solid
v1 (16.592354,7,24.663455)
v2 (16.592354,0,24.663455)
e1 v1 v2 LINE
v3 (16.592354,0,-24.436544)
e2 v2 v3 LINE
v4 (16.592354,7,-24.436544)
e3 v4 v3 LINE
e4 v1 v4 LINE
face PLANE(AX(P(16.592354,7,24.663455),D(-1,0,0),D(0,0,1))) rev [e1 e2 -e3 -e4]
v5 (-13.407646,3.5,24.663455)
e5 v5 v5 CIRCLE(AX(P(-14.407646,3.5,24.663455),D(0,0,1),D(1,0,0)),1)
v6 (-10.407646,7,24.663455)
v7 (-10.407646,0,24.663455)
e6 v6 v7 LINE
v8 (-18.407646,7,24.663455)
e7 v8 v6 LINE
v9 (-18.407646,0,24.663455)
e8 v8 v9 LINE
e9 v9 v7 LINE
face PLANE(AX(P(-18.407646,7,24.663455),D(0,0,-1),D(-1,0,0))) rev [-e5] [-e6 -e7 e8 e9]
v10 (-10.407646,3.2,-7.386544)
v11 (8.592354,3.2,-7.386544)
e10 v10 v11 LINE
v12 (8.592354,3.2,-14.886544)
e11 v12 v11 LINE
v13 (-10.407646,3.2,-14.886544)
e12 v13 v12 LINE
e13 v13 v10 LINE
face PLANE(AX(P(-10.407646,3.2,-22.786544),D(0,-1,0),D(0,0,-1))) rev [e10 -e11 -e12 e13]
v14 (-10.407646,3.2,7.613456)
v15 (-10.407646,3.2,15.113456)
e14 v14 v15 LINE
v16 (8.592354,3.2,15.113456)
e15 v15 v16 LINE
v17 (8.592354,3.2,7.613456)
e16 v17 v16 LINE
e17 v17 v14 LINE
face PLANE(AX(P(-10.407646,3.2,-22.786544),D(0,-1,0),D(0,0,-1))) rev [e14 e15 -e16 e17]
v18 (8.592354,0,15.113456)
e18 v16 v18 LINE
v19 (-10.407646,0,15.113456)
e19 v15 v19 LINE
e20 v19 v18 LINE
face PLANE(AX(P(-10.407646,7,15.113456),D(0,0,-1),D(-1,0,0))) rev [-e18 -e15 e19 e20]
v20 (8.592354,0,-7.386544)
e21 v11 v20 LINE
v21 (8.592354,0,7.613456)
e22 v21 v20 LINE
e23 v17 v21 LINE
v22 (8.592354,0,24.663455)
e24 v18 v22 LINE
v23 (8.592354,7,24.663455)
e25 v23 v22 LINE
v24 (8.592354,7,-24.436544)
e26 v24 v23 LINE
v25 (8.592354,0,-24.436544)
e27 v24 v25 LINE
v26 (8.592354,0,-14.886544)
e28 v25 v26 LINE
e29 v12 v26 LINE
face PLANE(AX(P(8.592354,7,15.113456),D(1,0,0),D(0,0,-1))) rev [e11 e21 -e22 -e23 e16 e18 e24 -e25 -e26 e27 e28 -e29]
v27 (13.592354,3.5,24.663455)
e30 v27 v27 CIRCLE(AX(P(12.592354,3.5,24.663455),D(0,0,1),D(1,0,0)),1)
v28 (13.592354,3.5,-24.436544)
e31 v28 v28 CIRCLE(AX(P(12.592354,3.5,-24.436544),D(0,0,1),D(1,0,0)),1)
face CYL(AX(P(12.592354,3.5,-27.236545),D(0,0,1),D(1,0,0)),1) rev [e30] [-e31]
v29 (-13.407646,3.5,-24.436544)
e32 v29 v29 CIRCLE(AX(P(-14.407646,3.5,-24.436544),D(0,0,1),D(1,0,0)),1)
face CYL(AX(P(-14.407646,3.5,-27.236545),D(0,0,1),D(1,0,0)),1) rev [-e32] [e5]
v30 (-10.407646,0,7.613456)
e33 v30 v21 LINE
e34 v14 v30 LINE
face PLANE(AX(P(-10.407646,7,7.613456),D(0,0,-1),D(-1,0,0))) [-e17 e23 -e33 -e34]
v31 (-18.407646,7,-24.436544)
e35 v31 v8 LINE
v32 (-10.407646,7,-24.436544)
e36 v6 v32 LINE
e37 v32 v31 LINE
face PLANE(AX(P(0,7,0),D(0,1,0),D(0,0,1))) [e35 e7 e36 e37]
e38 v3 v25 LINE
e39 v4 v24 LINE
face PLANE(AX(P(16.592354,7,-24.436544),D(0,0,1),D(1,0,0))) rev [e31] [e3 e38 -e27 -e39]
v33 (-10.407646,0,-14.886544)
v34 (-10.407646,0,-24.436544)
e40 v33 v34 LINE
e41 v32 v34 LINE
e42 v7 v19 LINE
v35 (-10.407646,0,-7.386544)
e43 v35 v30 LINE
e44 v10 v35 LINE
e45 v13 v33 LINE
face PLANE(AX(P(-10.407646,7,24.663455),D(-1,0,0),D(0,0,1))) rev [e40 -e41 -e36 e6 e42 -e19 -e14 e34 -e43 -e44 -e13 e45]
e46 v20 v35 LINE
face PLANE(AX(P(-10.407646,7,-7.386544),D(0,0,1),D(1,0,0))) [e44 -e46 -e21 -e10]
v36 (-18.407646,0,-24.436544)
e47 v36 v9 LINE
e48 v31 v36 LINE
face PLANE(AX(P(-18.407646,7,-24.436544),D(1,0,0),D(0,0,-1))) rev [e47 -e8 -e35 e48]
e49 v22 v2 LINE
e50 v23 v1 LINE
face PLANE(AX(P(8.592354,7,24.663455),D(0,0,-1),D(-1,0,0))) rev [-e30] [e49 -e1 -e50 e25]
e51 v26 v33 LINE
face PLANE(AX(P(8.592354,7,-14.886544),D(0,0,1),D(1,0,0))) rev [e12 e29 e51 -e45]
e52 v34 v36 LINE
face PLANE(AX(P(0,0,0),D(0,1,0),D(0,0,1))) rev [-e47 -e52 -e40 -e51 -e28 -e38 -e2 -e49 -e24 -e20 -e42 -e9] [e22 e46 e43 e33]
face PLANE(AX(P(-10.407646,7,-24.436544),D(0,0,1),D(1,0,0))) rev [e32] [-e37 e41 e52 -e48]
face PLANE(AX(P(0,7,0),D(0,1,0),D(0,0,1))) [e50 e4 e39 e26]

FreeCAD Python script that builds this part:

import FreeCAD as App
import Part
import Sketcher

V = App.Vector

doc = App.newDocument("Part")
body = doc.addObject("PartDesign::Body", "Body")

sketch1 = doc.addObject("Sketcher::SketchObject", "Sketch")
body.addObject(sketch1)
sketch1.AttachmentSupport = (doc.XZ_Plane, [""])
sketch1.MapMode = "FlatFace"
sketch1.addGeometry([
    Part.LineSegment(V(17, 25, 0), V(17, -24, 0)),
    Part.LineSegment(V(17, -24, 0), V(9, -24, 0)),
    Part.LineSegment(V(9, -24, 0), V(9, -15, 0)),
    Part.LineSegment(V(9, -15, 0), V(-10, -15, 0)),
    Part.LineSegment(V(-10, -15, 0), V(-10, -24, 0)),
    Part.LineSegment(V(-10, -24, 0), V(-18, -24, 0)),
    Part.LineSegment(V(-18, -24, 0), V(-18, 25, 0)),
    Part.LineSegment(V(-18, 25, 0), V(-10, 25, 0)),
    Part.LineSegment(V(-10, 25, 0), V(-10, 15, 0)),
    Part.LineSegment(V(-10, 15, 0), V(9, 15, 0)),
    Part.LineSegment(V(9, 15, 0), V(9, 25, 0)),
    Part.LineSegment(V(9, 25, 0), V(17, 25, 0)),
    Part.LineSegment(V(9, 8, 0), V(-10, 8, 0)),
    Part.LineSegment(V(-10, 8, 0), V(-10, -7, 0)),
    Part.LineSegment(V(-10, -7, 0), V(9, -7, 0)),
    Part.LineSegment(V(9, -7, 0), V(9, 8, 0)),
], False)
sketch1.addConstraint([
    Sketcher.Constraint("Coincident", 0, 2, 1, 1),
    Sketcher.Constraint("Coincident", 1, 2, 2, 1),
    Sketcher.Constraint("Coincident", 2, 2, 3, 1),
    Sketcher.Constraint("Coincident", 3, 2, 4, 1),
    Sketcher.Constraint("Coincident", 4, 2, 5, 1),
    Sketcher.Constraint("Coincident", 5, 2, 6, 1),
    Sketcher.Constraint("Coincident", 6, 2, 7, 1),
    Sketcher.Constraint("Coincident", 7, 2, 8, 1),
    Sketcher.Constraint("Coincident", 8, 2, 9, 1),
    Sketcher.Constraint("Coincident", 9, 2, 10, 1),
    Sketcher.Constraint("Coincident", 10, 2, 11, 1),
    Sketcher.Constraint("Coincident", 11, 2, 0, 1),
    Sketcher.Constraint("Coincident", 12, 2, 13, 1),
    Sketcher.Constraint("Coincident", 13, 2, 14, 1),
    Sketcher.Constraint("Coincident", 14, 2, 15, 1),
    Sketcher.Constraint("Coincident", 15, 2, 12, 1),
    Sketcher.Constraint("Vertical", 0),
    Sketcher.Constraint("Horizontal", 1),
    Sketcher.Constraint("Vertical", 2),
    Sketcher.Constraint("Horizontal", 3),
    Sketcher.Constraint("Vertical", 4),
    Sketcher.Constraint("Horizontal", 5),
    Sketcher.Constraint("Vertical", 6),
    Sketcher.Constraint("Horizontal", 7),
    Sketcher.Constraint("Vertical", 8),
    Sketcher.Constraint("Horizontal", 9),
    Sketcher.Constraint("Vertical", 10),
    Sketcher.Constraint("Horizontal", 11),
    Sketcher.Constraint("Horizontal", 12),
    Sketcher.Constraint("Vertical", 13),
    Sketcher.Constraint("Horizontal", 14),
    Sketcher.Constraint("Vertical", 15),
    Sketcher.Constraint("Horizontal", 1, 2, 4, 2),
    Sketcher.Constraint("Horizontal", 7, 2, 10, 2),
    Sketcher.Constraint("Vertical", 4, 2, 7, 2),
    Sketcher.Constraint("Vertical", 2, 2, 9, 2),
    Sketcher.Constraint("Vertical", 8, 2, 12, 2),
    Sketcher.Constraint("Vertical", 10, 2, 14, 2),
    Sketcher.Constraint("Equal", 1, 5),
    Sketcher.Constraint("Equal", 4, 8),
    Sketcher.Constraint("DistanceX", 1, 2, 1, 1, 8.0),
    Sketcher.Constraint("DistanceX", 3, 2, 3, 1, 19.0),
    Sketcher.Constraint("DistanceY", 13, 2, 13, 1, 15.0),
    Sketcher.Constraint("DistanceY", 0, 2, 0, 1, 49.099998),
    Sketcher.Constraint("DistanceY", 3, 2, 8, 2, 30.0),
    Sketcher.Constraint("DistanceY", 12, 2, 8, 2, 7.5),
    Sketcher.Constraint("DistanceX", -1, 1, 0, 2, 16.592354),
    Sketcher.Constraint("DistanceY", 0, 2, -1, 1, 24.436544),
])
pad1 = doc.addObject("PartDesign::Pad", "Pad")
body.addObject(pad1)
pad1.Profile = sketch1
pad1.Length = 7
pad1.Reversed = True

sketch2 = doc.addObject("Sketcher::SketchObject", "Sketch001")
body.addObject(sketch2)
sketch2.AttachmentSupport = (doc.XY_Plane, [""])
sketch2.MapMode = "FlatFace"
sketch2.AttachmentOffset = App.Placement(V(0, 0, 15.113456), App.Rotation())
sketch2.addGeometry([
    Part.LineSegment(V(-10.4, 7, 0), V(-10.4, 3.2, 0)),
    Part.LineSegment(V(-10.4, 3.2, 0), V(8.6, 3.2, 0)),
    Part.LineSegment(V(8.6, 3.2, 0), V(8.6, 7, 0)),
    Part.LineSegment(V(8.6, 7, 0), V(-10.4, 7, 0)),
], False)
sketch2.addConstraint([
    Sketcher.Constraint("Coincident", 0, 2, 1, 1),
    Sketcher.Constraint("Coincident", 1, 2, 2, 1),
    Sketcher.Constraint("Coincident", 2, 2, 3, 1),
    Sketcher.Constraint("Coincident", 3, 2, 0, 1),
    Sketcher.Constraint("Vertical", 0),
    Sketcher.Constraint("Horizontal", 1),
    Sketcher.Constraint("Vertical", 2),
    Sketcher.Constraint("Horizontal", 3),
    Sketcher.Constraint("DistanceX", 1, 1, 1, 2, 19.0),
    Sketcher.Constraint("DistanceY", 0, 2, 0, 1, 3.8),
    Sketcher.Constraint("DistanceY", -1, 1, 2, 2, 7.0),
    Sketcher.Constraint("DistanceX", 0, 2, -1, 1, 10.407646),
])
pocket1 = doc.addObject("PartDesign::Pocket", "Pocket")
body.addObject(pocket1)
pocket1.Profile = sketch2
pocket1.Length = 37.9

sketch3 = doc.addObject("Sketcher::SketchObject", "Sketch002")
body.addObject(sketch3)
sketch3.AttachmentSupport = (doc.XY_Plane, [""])
sketch3.MapMode = "FlatFace"
sketch3.AttachmentOffset = App.Placement(V(0, 0, 24.663455), App.Rotation())
sketch3.addGeometry([
    Part.Circle(V(12.6, 3.5, 0), V(0, 0, 1), 1),
    Part.Circle(V(-14.4, 3.5, 0), V(0, 0, 1), 1),
], False)
sketch3.addConstraint([
    Sketcher.Constraint("Equal", 0, 1),
    Sketcher.Constraint("Horizontal", 0, 3, 1, 3),
    Sketcher.Constraint("Diameter", 0, 2.0),
    Sketcher.Constraint("DistanceX", 1, 3, 0, 3, 27.0),
    Sketcher.Constraint("DistanceY", -1, 1, 0, 3, 3.5),
    Sketcher.Constraint("DistanceX", -1, 1, 0, 3, 12.592354),
])
pocket2 = doc.addObject("PartDesign::Pocket", "Pocket001")
body.addObject(pocket2)
pocket2.Profile = sketch3
pocket2.Length = 51.9

doc.recompute()
